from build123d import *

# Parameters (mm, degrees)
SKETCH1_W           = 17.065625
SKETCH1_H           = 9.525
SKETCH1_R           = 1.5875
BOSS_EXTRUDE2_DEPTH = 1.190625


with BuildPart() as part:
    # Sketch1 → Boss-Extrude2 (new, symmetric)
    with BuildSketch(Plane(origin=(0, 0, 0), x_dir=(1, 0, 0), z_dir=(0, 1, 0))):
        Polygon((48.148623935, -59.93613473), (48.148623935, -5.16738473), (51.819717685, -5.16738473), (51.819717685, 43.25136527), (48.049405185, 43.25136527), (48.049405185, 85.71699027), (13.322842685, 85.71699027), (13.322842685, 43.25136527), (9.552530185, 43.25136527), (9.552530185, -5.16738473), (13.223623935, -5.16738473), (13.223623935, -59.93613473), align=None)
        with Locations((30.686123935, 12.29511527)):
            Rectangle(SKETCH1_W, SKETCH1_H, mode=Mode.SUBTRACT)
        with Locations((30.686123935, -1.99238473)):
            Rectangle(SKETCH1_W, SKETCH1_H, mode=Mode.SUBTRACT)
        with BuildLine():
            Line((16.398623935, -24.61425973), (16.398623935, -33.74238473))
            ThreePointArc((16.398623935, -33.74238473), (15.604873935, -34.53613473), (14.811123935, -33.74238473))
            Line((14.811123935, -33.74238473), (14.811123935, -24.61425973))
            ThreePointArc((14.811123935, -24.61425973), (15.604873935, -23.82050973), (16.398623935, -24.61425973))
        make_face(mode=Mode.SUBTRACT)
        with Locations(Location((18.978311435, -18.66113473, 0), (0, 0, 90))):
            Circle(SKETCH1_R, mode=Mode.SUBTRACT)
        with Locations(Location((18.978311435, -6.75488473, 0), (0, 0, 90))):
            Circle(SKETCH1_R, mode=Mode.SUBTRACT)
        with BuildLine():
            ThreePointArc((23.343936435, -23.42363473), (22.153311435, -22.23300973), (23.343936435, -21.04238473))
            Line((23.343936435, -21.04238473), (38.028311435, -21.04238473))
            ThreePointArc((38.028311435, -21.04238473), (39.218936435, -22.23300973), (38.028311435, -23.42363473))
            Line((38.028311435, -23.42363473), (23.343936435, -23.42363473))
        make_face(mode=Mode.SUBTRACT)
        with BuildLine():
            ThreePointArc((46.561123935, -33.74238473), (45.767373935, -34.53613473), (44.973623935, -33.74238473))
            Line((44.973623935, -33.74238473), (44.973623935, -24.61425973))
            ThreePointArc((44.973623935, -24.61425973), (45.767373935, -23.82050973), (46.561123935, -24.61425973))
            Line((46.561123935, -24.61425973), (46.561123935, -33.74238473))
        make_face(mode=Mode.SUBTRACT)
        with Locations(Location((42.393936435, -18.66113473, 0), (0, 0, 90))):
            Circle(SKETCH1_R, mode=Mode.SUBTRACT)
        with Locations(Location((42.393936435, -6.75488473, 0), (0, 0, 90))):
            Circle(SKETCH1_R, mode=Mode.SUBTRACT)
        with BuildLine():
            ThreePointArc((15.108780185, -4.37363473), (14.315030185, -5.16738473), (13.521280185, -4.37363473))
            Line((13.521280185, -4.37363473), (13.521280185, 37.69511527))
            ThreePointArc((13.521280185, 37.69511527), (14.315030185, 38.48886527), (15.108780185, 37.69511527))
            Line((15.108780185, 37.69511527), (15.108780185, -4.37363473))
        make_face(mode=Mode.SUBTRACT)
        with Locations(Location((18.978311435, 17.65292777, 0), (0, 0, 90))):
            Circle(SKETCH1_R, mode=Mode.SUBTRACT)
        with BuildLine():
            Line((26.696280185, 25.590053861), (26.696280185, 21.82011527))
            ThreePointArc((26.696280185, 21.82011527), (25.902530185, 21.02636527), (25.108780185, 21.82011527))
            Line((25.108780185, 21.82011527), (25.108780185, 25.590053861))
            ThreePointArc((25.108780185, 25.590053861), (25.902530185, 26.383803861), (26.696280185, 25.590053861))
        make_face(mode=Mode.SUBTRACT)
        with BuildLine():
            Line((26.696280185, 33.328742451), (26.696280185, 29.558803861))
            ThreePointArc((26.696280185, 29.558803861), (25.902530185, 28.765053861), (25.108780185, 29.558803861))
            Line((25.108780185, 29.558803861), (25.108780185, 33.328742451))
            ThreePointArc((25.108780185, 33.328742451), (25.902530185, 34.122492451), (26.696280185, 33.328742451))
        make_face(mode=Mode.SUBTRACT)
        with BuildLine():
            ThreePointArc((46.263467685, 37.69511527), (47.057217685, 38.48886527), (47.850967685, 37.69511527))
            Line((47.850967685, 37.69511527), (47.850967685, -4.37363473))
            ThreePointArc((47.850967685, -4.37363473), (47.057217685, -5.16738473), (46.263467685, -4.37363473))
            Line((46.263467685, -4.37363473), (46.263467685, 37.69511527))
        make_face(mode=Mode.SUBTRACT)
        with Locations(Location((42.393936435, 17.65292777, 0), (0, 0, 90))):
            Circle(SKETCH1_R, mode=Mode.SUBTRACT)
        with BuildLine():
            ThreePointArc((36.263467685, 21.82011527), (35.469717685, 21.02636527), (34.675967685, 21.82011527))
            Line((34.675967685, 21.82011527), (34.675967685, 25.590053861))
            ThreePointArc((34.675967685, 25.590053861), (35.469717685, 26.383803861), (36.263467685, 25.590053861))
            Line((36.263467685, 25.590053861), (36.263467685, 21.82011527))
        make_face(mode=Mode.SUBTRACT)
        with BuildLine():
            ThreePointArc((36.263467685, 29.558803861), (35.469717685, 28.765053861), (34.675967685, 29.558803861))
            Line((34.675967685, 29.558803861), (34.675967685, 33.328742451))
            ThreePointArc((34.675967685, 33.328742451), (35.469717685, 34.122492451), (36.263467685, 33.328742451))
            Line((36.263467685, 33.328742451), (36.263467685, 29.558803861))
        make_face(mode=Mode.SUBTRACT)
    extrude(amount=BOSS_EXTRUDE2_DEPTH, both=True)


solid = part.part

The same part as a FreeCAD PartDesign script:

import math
import FreeCAD as App
import Part
import Sketcher

V = App.Vector
Q = App.Units.Quantity

doc = App.newDocument("Part")
body = doc.addObject("PartDesign::Body", "Body")

sketch1 = body.newObject("Sketcher::SketchObject", "Sketch")
sketch1.AttachmentSupport = (doc.getObject("XZ_Plane"), [""])
sketch1.MapMode = "FlatFace"
sketch1.addGeometry([
    Part.LineSegment(V(48.1, 59.9, 0), V(48.1, 5.2, 0)),
    Part.LineSegment(V(48.1, 5.2, 0), V(51.8, 5.2, 0)),
    Part.LineSegment(V(51.8, 5.2, 0), V(51.8, -43.3, 0)),
    Part.LineSegment(V(51.8, -43.3, 0), V(48, -43.3, 0)),
    Part.LineSegment(V(48, -43.3, 0), V(48, -85.7, 0)),
    Part.LineSegment(V(48, -85.7, 0), V(13.3, -85.7, 0)),
    Part.LineSegment(V(13.3, -85.7, 0), V(13.3, -43.3, 0)),
    Part.LineSegment(V(13.3, -43.3, 0), V(9.6, -43.3, 0)),
    Part.LineSegment(V(9.6, -43.3, 0), V(9.6, 5.2, 0)),
    Part.LineSegment(V(9.6, 5.2, 0), V(13.2, 5.2, 0)),
    Part.LineSegment(V(13.2, 5.2, 0), V(13.2, 59.9, 0)),
    Part.LineSegment(V(13.2, 59.9, 0), V(48.1, 59.9, 0)),
    Part.ArcOfCircle(Part.Circle(V(15.6, 24.6, 0), V(0, 0, 1), 0.8), math.radians(180), math.radians(360)),
    Part.LineSegment(V(16.4, 24.6, 0), V(16.4, 33.7, 0)),
    Part.ArcOfCircle(Part.Circle(V(15.6, 33.7, 0), V(0, 0, 1), 0.8), math.radians(0), math.radians(180)),
    Part.LineSegment(V(14.8, 33.7, 0), V(14.8, 24.6, 0)),
    Part.Circle(V(19, 18.7, 0), V(0, 0, 1), 1.6),
    Part.LineSegment(V(38, 23.4, 0), V(23.3, 23.4, 0)),
    Part.ArcOfCircle(Part.Circle(V(23.3, 22.2, 0), V(0, 0, 1), 1.2), math.radians(90), math.radians(270)),
    Part.LineSegment(V(23.3, 21, 0), V(38, 21, 0)),
    Part.ArcOfCircle(Part.Circle(V(38, 22.2, 0), V(0, 0, 1), 1.2), math.radians(-90), math.radians(90)),
    Part.Circle(V(19, 6.8, 0), V(0, 0, 1), 1.6),
    Part.LineSegment(V(46.6, 24.6, 0), V(46.6, 33.7, 0)),
    Part.ArcOfCircle(Part.Circle(V(45.8, 33.7, 0), V(0, 0, 1), 0.8), math.radians(0), math.radians(180)),
    Part.LineSegment(V(45, 33.7, 0), V(45, 24.6, 0)),
    Part.ArcOfCircle(Part.Circle(V(45.8, 24.6, 0), V(0, 0, 1), 0.8), math.radians(180), math.radians(360)),
    Part.Circle(V(42.4, 18.7, 0), V(0, 0, 1), 1.6),
    Part.LineSegment(V(39.2, 6.8, 0), V(22.2, 6.8, 0)),
    Part.LineSegment(V(22.2, 6.8, 0), V(22.2, -2.8, 0)),
    Part.LineSegment(V(22.2, -2.8, 0), V(39.2, -2.8, 0)),
    Part.LineSegment(V(39.2, -2.8, 0), V(39.2, 6.8, 0)),
    Part.Circle(V(42.4, 6.8, 0), V(0, 0, 1), 1.6),
    Part.LineSegment(V(15.1, -37.7, 0), V(15.1, 4.4, 0)),
    Part.ArcOfCircle(Part.Circle(V(14.3, 4.4, 0), V(0, 0, 1), 0.8), math.radians(0), math.radians(180)),
    Part.LineSegment(V(13.5, 4.4, 0), V(13.5, -37.7, 0)),
    Part.ArcOfCircle(Part.Circle(V(14.3, -37.7, 0), V(0, 0, 1), 0.8), math.radians(180), math.radians(360)),
    Part.Circle(V(19, -17.7, 0), V(0, 0, 1), 1.6),
    Part.ArcOfCircle(Part.Circle(V(25.9, -25.6, 0), V(0, 0, 1), 0.8), math.radians(180), math.radians(360)),
    Part.LineSegment(V(26.7, -25.6, 0), V(26.7, -21.8, 0)),
    Part.ArcOfCircle(Part.Circle(V(25.9, -21.8, 0), V(0, 0, 1), 0.8), math.radians(0), math.radians(180)),
    Part.LineSegment(V(25.1, -21.8, 0), V(25.1, -25.6, 0)),
    Part.ArcOfCircle(Part.Circle(V(25.9, -33.3, 0), V(0, 0, 1), 0.8), math.radians(180), math.radians(360)),
    Part.LineSegment(V(26.7, -33.3, 0), V(26.7, -29.6, 0)),
    Part.ArcOfCircle(Part.Circle(V(25.9, -29.6, 0), V(0, 0, 1), 0.8), math.radians(0), math.radians(180)),
    Part.LineSegment(V(25.1, -29.6, 0), V(25.1, -33.3, 0)),
    Part.LineSegment(V(39.2, -7.5, 0), V(22.2, -7.5, 0)),
    Part.LineSegment(V(22.2, -7.5, 0), V(22.2, -17.1, 0)),
    Part.LineSegment(V(22.2, -17.1, 0), V(39.2, -17.1, 0)),
    Part.LineSegment(V(39.2, -17.1, 0), V(39.2, -7.5, 0)),
    Part.Circle(V(42.4, -17.7, 0), V(0, 0, 1), 1.6),
    Part.LineSegment(V(46.3, 4.4, 0), V(46.3, -37.7, 0)),
    Part.ArcOfCircle(Part.Circle(V(47.1, -37.7, 0), V(0, 0, 1), 0.8), math.radians(180), math.radians(360)),
    Part.LineSegment(V(47.9, -37.7, 0), V(47.9, 4.4, 0)),
    Part.ArcOfCircle(Part.Circle(V(47.1, 4.4, 0), V(0, 0, 1), 0.8), math.radians(0), math.radians(180)),
    Part.LineSegment(V(36.3, -25.6, 0), V(36.3, -21.8, 0)),
    Part.ArcOfCircle(Part.Circle(V(35.5, -21.8, 0), V(0, 0, 1), 0.8), math.radians(0), math.radians(180)),
    Part.LineSegment(V(34.7, -21.8, 0), V(34.7, -25.6, 0)),
    Part.ArcOfCircle(Part.Circle(V(35.5, -25.6, 0), V(0, 0, 1), 0.8), math.radians(180), math.radians(360)),
    Part.LineSegment(V(36.3, -33.3, 0), V(36.3, -29.6, 0)),
    Part.ArcOfCircle(Part.Circle(V(35.5, -29.6, 0), V(0, 0, 1), 0.8), math.radians(0), math.radians(180)),
    Part.LineSegment(V(34.7, -29.6, 0), V(34.7, -33.3, 0)),
    Part.ArcOfCircle(Part.Circle(V(35.5, -33.3, 0), V(0, 0, 1), 0.8), math.radians(180), math.radians(360)),
], False)
sketch1.addConstraint([
    Sketcher.Constraint("Coincident", 0, 2, 1, 1),
    Sketcher.Constraint("Coincident", 1, 2, 2, 1),
    Sketcher.Constraint("Coincident", 2, 2, 3, 1),
    Sketcher.Constraint("Coincident", 3, 2, 4, 1),
    Sketcher.Constraint("Coincident", 4, 2, 5, 1),
    Sketcher.Constraint("Coincident", 5, 2, 6, 1),
    Sketcher.Constraint("Coincident", 6, 2, 7, 1),
    Sketcher.Constraint("Coincident", 7, 2, 8, 1),
    Sketcher.Constraint("Coincident", 8, 2, 9, 1),
    Sketcher.Constraint("Coincident", 9, 2, 10, 1),
    Sketcher.Constraint("Coincident", 10, 2, 11, 1),
    Sketcher.Constraint("Coincident", 11, 2, 0, 1),
    Sketcher.Constraint("Tangent", 12, 2, 13, 1),
    Sketcher.Constraint("Tangent", 13, 2, 14, 1),
    Sketcher.Constraint("Tangent", 14, 2, 15, 1),
    Sketcher.Constraint("Tangent", 15, 2, 12, 1),
    Sketcher.Constraint("Tangent", 17, 2, 18, 1),
    Sketcher.Constraint("Tangent", 18, 2, 19, 1),
    Sketcher.Constraint("Tangent", 19, 2, 20, 1),
    Sketcher.Constraint("Tangent", 20, 2, 17, 1),
    Sketcher.Constraint("Tangent", 22, 2, 23, 1),
    Sketcher.Constraint("Tangent", 23, 2, 24, 1),
    Sketcher.Constraint("Tangent", 24, 2, 25, 1),
    Sketcher.Constraint("Tangent", 25, 2, 22, 1),
    Sketcher.Constraint("Coincident", 27, 2, 28, 1),
    Sketcher.Constraint("Coincident", 28, 2, 29, 1),
    Sketcher.Constraint("Coincident", 29, 2, 30, 1),
    Sketcher.Constraint("Coincident", 30, 2, 27, 1),
    Sketcher.Constraint("Tangent", 32, 2, 33, 1),
    Sketcher.Constraint("Tangent", 33, 2, 34, 1),
    Sketcher.Constraint("Tangent", 34, 2, 35, 1),
    Sketcher.Constraint("Tangent", 35, 2, 32, 1),
    Sketcher.Constraint("Tangent", 37, 2, 38, 1),
    Sketcher.Constraint("Tangent", 38, 2, 39, 1),
    Sketcher.Constraint("Tangent", 39, 2, 40, 1),
    Sketcher.Constraint("Tangent", 40, 2, 37, 1),
    Sketcher.Constraint("Tangent", 41, 2, 42, 1),
    Sketcher.Constraint("Tangent", 42, 2, 43, 1),
    Sketcher.Constraint("Tangent", 43, 2, 44, 1),
    Sketcher.Constraint("Tangent", 44, 2, 41, 1),
    Sketcher.Constraint("Coincident", 45, 2, 46, 1),
    Sketcher.Constraint("Coincident", 46, 2, 47, 1),
    Sketcher.Constraint("Coincident", 47, 2, 48, 1),
    Sketcher.Constraint("Coincident", 48, 2, 45, 1),
    Sketcher.Constraint("Tangent", 50, 2, 51, 1),
    Sketcher.Constraint("Tangent", 51, 2, 52, 1),
    Sketcher.Constraint("Tangent", 52, 2, 53, 1),
    Sketcher.Constraint("Tangent", 53, 2, 50, 1),
    Sketcher.Constraint("Tangent", 54, 2, 55, 1),
    Sketcher.Constraint("Tangent", 55, 2, 56, 1),
    Sketcher.Constraint("Tangent", 56, 2, 57, 1),
    Sketcher.Constraint("Tangent", 57, 2, 54, 1),
    Sketcher.Constraint("Tangent", 58, 2, 59, 1),
    Sketcher.Constraint("Tangent", 59, 2, 60, 1),
    Sketcher.Constraint("Tangent", 60, 2, 61, 1),
    Sketcher.Constraint("Tangent", 61, 2, 58, 1),
    Sketcher.Constraint("Vertical", 0),
    Sketcher.Constraint("Horizontal", 1),
    Sketcher.Constraint("Vertical", 2),
    Sketcher.Constraint("Horizontal", 3),
    Sketcher.Constraint("Vertical", 4),
    Sketcher.Constraint("Horizontal", 5),
    Sketcher.Constraint("Vertical", 6),
    Sketcher.Constraint("Horizontal", 7),
    Sketcher.Constraint("Vertical", 8),
    Sketcher.Constraint("Horizontal", 9),
    Sketcher.Constraint("Vertical", 10),
    Sketcher.Constraint("Horizontal", 11),
    Sketcher.Constraint("Vertical", 13),
    Sketcher.Constraint("Vertical", 15),
    Sketcher.Constraint("Horizontal", 17),
    Sketcher.Constraint("Horizontal", 19),
    Sketcher.Constraint("Vertical", 22),
    Sketcher.Constraint("Vertical", 24),
    Sketcher.Constraint("Horizontal", 27),
    Sketcher.Constraint("Vertical", 28),
    Sketcher.Constraint("Horizontal", 29),
    Sketcher.Constraint("Vertical", 30),
    Sketcher.Constraint("Vertical", 32),
    Sketcher.Constraint("Vertical", 34),
    Sketcher.Constraint("Vertical", 38),
    Sketcher.Constraint("Vertical", 40),
    Sketcher.Constraint("Vertical", 42),
    Sketcher.Constraint("Vertical", 44),
    Sketcher.Constraint("Horizontal", 45),
    Sketcher.Constraint("Vertical", 46),
    Sketcher.Constraint("Horizontal", 47),
    Sketcher.Constraint("Vertical", 48),
    Sketcher.Constraint("Vertical", 50),
    Sketcher.Constraint("Vertical", 52),
    Sketcher.Constraint("Vertical", 54),
    Sketcher.Constraint("Vertical", 56),
    Sketcher.Constraint("Vertical", 58),
    Sketcher.Constraint("Vertical", 60),
    Sketcher.Constraint("Equal", 16, 21),
    Sketcher.Constraint("Equal", 14, 23),
    Sketcher.Constraint("Equal", 21, 26),
    Sketcher.Constraint("Equal", 26, 31),
    Sketcher.Constraint("Equal", 25, 33),
    Sketcher.Constraint("Equal", 31, 36),
    Sketcher.Constraint("Equal", 35, 37),
    Sketcher.Constraint("Equal", 39, 41),
    Sketcher.Constraint("Equal", 36, 49),
    Sketcher.Constraint("Equal", 43, 51),
    Sketcher.Constraint("Equal", 53, 55),
    Sketcher.Constraint("Equal", 57, 59),
    Sketcher.Constraint("Horizontal", 14, 3, 23, 3),
    Sketcher.Constraint("Horizontal", 12, 3, 25, 3),
    Sketcher.Constraint("Horizontal", 16, 3, 26, 3),
    Sketcher.Constraint("Horizontal", 21, 3, 31, 3),
    Sketcher.Constraint("Horizontal", 36, 3, 49, 3),
    Sketcher.Constraint("Horizontal", 35, 3, 51, 3),
    Sketcher.Constraint("Horizontal", 33, 3, 53, 3),
    Sketcher.Constraint("Horizontal", 39, 3, 55, 3),
    Sketcher.Constraint("Horizontal", 37, 3, 57, 3),
    Sketcher.Constraint("Horizontal", 43, 3, 59, 3),
    Sketcher.Constraint("Horizontal", 41, 3, 61, 3),
    Sketcher.Constraint("Horizontal", 3, 2, 6, 2),
    Sketcher.Constraint("Horizontal", 1, 2, 8, 2),
    Sketcher.Constraint("Horizontal", 31, 3, 27, 2),
    Sketcher.Constraint("Vertical", 16, 3, 21, 3),
    Sketcher.Constraint("Vertical", 26, 3, 31, 3),
    Sketcher.Constraint("Vertical", 21, 3, 36, 3),
    Sketcher.Constraint("Vertical", 39, 3, 41, 3),
    Sketcher.Constraint("Vertical", 31, 3, 49, 3),
    Sketcher.Constraint("Vertical", 57, 3, 59, 3),
    Sketcher.Constraint("Vertical", 28, 2, 45, 2),
    Sketcher.Constraint("Vertical", 30, 2, 47, 2),
    Sketcher.Constraint("Equal", 3, 7),
    Sketcher.Constraint("Equal", 1, 9),
    Sketcher.Constraint("Equal", 40, 42),
    Sketcher.Constraint("Equal", 30, 46),
    Sketcher.Constraint("Diameter", 16, Q("0.125 in")),
    Sketcher.Constraint("Radius", 12, Q("0.03125 in")),
    Sketcher.Constraint("Radius", 18, Q("0.046875 in")),
    Sketcher.Constraint("DistanceX", 11, 1, 11, 2, Q("1.375 in")),
    Sketcher.Constraint("DistanceX", 17, 2, 17, 1, Q("0.578125 in")),
    Sketcher.Constraint("DistanceX", 27, 2, 27, 1, Q("0.671875 in")),
    Sketcher.Constraint("DistanceY", 0, 2, 0, 1, Q("2.15625 in")),
    Sketcher.Constraint("DistanceY", 2, 2, 2, 1, Q("1.90625 in")),
    Sketcher.Constraint("DistanceY", 4, 2, 4, 1, Q("1.671875 in")),
    Sketcher.Constraint("DistanceY", 13, 1, 13, 2, Q("0.359375 in")),
    Sketcher.Constraint("DistanceY", 28, 2, 28, 1, Q("0.375 in")),
    Sketcher.Constraint("DistanceY", 32, 1, 32, 2, Q("1.65625 in")),
    Sketcher.Constraint("DistanceY", 38, 1, 38, 2, 3.769939),
    Sketcher.Constraint("DistanceX", 1, 1, 1, 2, 3.671094),
    Sketcher.Constraint("DistanceX", 3, 2, 3, 1, 3.770313),
    Sketcher.Constraint("DistanceY", -1, 1, 12, 3, 24.61426),
    Sketcher.Constraint("DistanceX", -1, 1, 16, 3, 18.978311),
    Sketcher.Constraint("DistanceY", -1, 1, 18, 3, 22.23301),
    Sketcher.Constraint("DistanceX", -1, 1, 20, 3, 38.028311),
    Sketcher.Constraint("DistanceX", -1, 1, 33, 3, 14.31503),
    Sketcher.Constraint("DistanceX", -1, 1, 37, 3, 25.90253),
    Sketcher.Constraint("DistanceY", 4, 2, -1, 1, 85.71699),
    Sketcher.Constraint("DistanceX", -1, 1, 7, 2, 9.55253),
    Sketcher.Constraint("DistanceX", -1, 1, 27, 2, 22.153311),
    Sketcher.Constraint("DistanceX", -1, 1, 12, 3, 15.604874),
    Sketcher.Constraint("DistanceY", -1, 1, 16, 3, 18.661135),
    Sketcher.Constraint("DistanceY", -1, 1, 21, 3, 6.754885),
    Sketcher.Constraint("DistanceX", -1, 1, 23, 3, 45.767374),
    Sketcher.Constraint("DistanceX", -1, 1, 26, 3, 42.393936),
    Sketcher.Constraint("DistanceY", -1, 1, 33, 3, 4.373635),
    Sketcher.Constraint("DistanceY", 36, 3, -1, 1, 17.652928),
    Sketcher.Constraint("DistanceY", 37, 3, -1, 1, 25.590054),
    Sketcher.Constraint("DistanceY", 41, 3, -1, 1, 33.328742),
    Sketcher.Constraint("DistanceX", -1, 1, 51, 3, 47.057218),
    Sketcher.Constraint("DistanceX", -1, 1, 55, 3, 35.469718),
    Sketcher.Constraint("DistanceY", 45, 2, -1, 1, 7.532615),
])
pad1 = body.newObject("PartDesign::Pad", "Pad")
pad1.Profile = sketch1
pad1.Length = Q("0.09375 in")
pad1.Midplane = True

doc.recompute()
